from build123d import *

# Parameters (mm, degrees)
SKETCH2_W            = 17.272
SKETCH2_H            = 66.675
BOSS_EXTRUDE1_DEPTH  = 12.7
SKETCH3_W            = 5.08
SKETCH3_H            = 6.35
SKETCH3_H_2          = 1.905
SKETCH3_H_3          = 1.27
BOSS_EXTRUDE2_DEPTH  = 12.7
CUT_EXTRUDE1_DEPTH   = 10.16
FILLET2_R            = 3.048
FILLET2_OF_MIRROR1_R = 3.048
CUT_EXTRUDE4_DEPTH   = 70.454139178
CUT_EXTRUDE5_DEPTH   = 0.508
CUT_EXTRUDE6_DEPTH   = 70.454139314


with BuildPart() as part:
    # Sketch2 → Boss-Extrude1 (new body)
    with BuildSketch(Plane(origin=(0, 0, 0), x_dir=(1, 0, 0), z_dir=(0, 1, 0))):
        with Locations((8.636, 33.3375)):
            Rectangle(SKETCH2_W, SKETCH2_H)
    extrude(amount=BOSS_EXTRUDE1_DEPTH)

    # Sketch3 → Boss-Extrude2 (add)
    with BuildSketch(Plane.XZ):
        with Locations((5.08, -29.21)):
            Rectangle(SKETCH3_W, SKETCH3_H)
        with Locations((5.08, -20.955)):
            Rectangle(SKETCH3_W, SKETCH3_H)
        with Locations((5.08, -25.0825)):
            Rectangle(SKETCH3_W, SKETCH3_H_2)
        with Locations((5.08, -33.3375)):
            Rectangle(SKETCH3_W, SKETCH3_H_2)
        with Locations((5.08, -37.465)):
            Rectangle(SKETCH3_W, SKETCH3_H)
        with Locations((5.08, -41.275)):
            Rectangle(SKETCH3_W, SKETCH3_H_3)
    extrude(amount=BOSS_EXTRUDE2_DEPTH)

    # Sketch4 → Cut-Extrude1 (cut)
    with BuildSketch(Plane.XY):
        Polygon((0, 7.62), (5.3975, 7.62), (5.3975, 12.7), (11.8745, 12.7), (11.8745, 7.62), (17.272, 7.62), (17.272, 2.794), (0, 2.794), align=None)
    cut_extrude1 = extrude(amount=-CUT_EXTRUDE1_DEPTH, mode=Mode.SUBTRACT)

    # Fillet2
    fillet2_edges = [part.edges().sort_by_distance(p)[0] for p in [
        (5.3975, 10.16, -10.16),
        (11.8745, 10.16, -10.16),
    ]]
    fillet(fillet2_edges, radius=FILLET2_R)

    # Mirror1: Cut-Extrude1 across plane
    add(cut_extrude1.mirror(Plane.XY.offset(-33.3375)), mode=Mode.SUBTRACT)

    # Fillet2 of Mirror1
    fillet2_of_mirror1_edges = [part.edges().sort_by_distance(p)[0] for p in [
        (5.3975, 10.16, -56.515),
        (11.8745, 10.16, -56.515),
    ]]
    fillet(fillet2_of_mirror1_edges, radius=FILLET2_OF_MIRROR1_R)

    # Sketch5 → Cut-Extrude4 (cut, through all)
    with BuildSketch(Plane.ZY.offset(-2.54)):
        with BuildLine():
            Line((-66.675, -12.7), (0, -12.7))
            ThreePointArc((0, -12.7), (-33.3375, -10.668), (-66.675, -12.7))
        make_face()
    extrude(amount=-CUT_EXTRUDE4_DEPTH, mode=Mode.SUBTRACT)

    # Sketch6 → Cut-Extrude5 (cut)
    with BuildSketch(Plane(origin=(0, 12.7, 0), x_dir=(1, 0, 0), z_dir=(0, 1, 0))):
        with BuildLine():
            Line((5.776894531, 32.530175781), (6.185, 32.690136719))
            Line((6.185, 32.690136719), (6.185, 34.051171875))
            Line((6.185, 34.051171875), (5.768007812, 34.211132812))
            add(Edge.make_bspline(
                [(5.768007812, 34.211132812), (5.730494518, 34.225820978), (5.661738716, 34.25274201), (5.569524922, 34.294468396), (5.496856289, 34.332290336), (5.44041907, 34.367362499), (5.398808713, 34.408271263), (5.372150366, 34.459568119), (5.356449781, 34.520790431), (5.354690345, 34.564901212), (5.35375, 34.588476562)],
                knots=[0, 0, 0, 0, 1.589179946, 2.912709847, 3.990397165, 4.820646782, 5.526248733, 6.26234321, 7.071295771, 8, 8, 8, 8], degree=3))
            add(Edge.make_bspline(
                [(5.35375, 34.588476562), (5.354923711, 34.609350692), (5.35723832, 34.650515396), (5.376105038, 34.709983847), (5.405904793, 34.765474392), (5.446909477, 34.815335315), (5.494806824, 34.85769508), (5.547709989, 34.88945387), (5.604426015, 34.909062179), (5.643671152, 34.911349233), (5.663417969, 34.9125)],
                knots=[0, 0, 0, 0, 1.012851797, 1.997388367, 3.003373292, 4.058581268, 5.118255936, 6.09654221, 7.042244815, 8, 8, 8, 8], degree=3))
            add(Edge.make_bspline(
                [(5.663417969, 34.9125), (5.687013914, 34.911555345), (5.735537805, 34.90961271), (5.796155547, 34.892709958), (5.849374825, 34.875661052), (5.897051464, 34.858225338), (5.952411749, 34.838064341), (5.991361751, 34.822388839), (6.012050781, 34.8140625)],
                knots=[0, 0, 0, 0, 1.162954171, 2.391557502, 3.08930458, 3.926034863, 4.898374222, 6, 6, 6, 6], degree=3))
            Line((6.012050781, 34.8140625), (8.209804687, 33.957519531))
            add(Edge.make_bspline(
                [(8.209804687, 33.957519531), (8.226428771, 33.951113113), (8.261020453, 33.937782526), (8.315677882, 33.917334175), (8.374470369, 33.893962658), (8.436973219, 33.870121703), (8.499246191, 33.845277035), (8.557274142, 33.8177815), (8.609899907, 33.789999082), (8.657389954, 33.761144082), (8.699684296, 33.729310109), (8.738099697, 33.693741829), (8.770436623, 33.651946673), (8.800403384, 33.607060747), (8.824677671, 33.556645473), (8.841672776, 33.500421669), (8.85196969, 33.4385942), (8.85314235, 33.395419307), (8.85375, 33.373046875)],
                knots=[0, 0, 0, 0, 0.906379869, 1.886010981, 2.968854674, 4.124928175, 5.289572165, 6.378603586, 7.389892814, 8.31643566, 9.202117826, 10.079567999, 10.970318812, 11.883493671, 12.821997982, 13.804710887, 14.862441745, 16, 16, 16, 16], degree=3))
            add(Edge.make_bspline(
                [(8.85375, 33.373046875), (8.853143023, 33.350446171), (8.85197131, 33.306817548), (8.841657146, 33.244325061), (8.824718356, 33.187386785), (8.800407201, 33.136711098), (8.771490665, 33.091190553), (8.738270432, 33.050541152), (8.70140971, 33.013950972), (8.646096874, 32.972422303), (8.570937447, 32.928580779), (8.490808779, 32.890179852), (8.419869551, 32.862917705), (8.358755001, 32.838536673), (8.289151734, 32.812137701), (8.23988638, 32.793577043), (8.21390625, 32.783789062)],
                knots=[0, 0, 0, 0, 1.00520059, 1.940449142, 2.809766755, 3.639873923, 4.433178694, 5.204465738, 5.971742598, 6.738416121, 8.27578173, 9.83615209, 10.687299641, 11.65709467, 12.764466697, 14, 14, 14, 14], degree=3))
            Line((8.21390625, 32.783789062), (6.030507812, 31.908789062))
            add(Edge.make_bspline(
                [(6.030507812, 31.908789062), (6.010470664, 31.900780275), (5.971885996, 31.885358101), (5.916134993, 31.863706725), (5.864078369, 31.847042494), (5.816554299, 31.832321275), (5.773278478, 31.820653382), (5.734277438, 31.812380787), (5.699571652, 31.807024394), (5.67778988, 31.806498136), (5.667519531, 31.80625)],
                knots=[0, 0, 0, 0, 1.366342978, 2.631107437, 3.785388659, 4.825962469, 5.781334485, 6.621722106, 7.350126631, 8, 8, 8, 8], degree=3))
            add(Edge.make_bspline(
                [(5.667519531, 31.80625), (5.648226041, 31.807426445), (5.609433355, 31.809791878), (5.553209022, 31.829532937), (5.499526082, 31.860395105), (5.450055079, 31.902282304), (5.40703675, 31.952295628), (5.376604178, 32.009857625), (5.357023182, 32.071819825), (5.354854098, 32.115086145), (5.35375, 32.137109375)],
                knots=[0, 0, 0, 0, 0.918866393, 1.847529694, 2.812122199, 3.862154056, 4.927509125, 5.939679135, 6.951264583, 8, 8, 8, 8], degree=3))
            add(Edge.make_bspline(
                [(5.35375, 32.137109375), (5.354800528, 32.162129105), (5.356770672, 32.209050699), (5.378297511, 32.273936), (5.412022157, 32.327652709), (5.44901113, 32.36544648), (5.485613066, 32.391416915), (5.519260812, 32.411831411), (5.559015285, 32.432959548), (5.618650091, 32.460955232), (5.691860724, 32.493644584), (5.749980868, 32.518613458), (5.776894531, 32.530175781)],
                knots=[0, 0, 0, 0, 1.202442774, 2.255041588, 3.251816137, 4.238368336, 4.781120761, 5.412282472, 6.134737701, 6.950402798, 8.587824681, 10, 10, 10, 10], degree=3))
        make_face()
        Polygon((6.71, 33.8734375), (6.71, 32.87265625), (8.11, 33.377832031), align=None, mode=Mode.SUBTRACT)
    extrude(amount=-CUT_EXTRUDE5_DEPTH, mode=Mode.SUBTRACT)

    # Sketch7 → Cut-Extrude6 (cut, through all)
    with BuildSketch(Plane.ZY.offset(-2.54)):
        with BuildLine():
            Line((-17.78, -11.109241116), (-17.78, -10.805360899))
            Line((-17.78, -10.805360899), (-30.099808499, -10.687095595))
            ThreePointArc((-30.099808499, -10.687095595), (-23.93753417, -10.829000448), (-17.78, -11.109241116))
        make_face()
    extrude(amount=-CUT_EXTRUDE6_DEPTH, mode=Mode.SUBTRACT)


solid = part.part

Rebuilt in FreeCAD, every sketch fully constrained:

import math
import FreeCAD as App
import Part
import Sketcher

V = App.Vector
Q = App.Units.Quantity


def edges_at(feature, points):
    """Names of the edges that pass closest to the given points."""
    edges = feature.Shape.Edges
    near = lambda p: min(range(len(edges)), key=lambda i: edges[i].distToShape(Part.Vertex(*p))[0])
    return sorted({f"Edge{near(p) + 1}" for p in points})


def add_polygon(sketch, points):
    """Adds a closed chain of lines whose ends are joined by coincident constraints."""
    first, n = sketch.GeometryCount, len(points)
    for a, b in zip(points, points[1:] + points[:1]):
        sketch.addGeometry(Part.LineSegment(App.Vector(*a, 0), App.Vector(*b, 0)), False)
    for i in range(n):
        sketch.addConstraint(Sketcher.Constraint("Coincident", first + i, 2, first + (i + 1) % n, 1))

doc = App.newDocument("Part")
params = doc.addObject("Spreadsheet::Sheet", "Params")
for row, (alias, value) in enumerate([
    ("sketch1_width", "0.68 in"),
    ("sketch1_height", "2.625 in"),
    ("pad1_length", "0.5 in"),
    ("sketch2_width", "0.2 in"),
    ("sketch2_height", "0.95 in"),
    ("pad2_length", "0.5 in"),
    ("sketch3_height", "0.2 in"),
    ("sketch3_width", "0.68 in"),
    ("sketch3_height2", "0.19 in"),
    ("sketch3_width2", "0.255 in"),
    ("pocket1_length", "0.4 in"),
    ("fillet_radius", "0.12 in"),
    ("fillet2_radius", "0.12 in"),
    ("sketch4_height", "2.625 in"),
    ("pocket3_length", "0.02 in"),
], start=1):
    params.set(f"A{row}", alias)
    params.set(f"B{row}", "=" + value)
    params.setAlias(f"B{row}", alias)

body = doc.addObject("PartDesign::Body", "Body")

# Sketch on XZ plane
sketch1 = body.newObject("Sketcher::SketchObject", "Sketch")
sketch1.AttachmentSupport = (doc.getObject("XZ_Plane"), [""])
sketch1.MapMode = "FlatFace"
add_polygon(sketch1, [(0, -67), (0, 0), (17, 0), (17, -67)])  # lines 0-3
sketch1.addConstraint(Sketcher.Constraint("Vertical", 0))
sketch1.addConstraint(Sketcher.Constraint("Horizontal", 1))
sketch1.addConstraint(Sketcher.Constraint("Vertical", 2))
sketch1.addConstraint(Sketcher.Constraint("Horizontal", 3))
sketch1.addConstraint(Sketcher.Constraint("Coincident", 0, 2, -1, 1))
sketch1.addConstraint(Sketcher.Constraint("DistanceX", 1, 1, 1, 2, Q("0.68 in")))
sketch1.addConstraint(Sketcher.Constraint("DistanceY", 0, 1, 0, 2, Q("2.625 in")))
sketch1.setExpression("Constraints[9]", "Params.sketch1_width")
sketch1.setExpression("Constraints[10]", "Params.sketch1_height")
pad1 = body.newObject("PartDesign::Pad", "Pad")
pad1.Profile = sketch1
pad1.setExpression("Length", "Params.pad1_length")
pad1.Reversed = True

# Sketch on XZ plane
sketch2 = body.newObject("Sketcher::SketchObject", "Sketch001")
sketch2.AttachmentSupport = (doc.getObject("XZ_Plane"), [""])
sketch2.MapMode = "FlatFace"
add_polygon(sketch2, [(8, -18), (3, -18), (3, -42), (8, -42)])  # lines 0-3
sketch2.addConstraint(Sketcher.Constraint("Horizontal", 0))
sketch2.addConstraint(Sketcher.Constraint("Vertical", 1))
sketch2.addConstraint(Sketcher.Constraint("Horizontal", 2))
sketch2.addConstraint(Sketcher.Constraint("Vertical", 3))
sketch2.addConstraint(Sketcher.Constraint("DistanceX", 0, 2, 0, 1, Q("0.2 in")))
sketch2.addConstraint(Sketcher.Constraint("DistanceY", 1, 2, 1, 1, Q("0.95 in")))
sketch2.addConstraint(Sketcher.Constraint("DistanceX", -1, 1, 0, 2, Q("0.1 in")))
sketch2.addConstraint(Sketcher.Constraint("DistanceY", 0, 2, -1, 1, Q("0.7 in")))
sketch2.setExpression("Constraints[8]", "Params.sketch2_width")
sketch2.setExpression("Constraints[9]", "Params.sketch2_height")
pad2 = body.newObject("PartDesign::Pad", "Pad001")
pad2.Profile = sketch2
pad2.setExpression("Length", "Params.pad2_length")

# Sketch on XY plane
sketch3 = body.newObject("Sketcher::SketchObject", "Sketch002")
sketch3.AttachmentSupport = (doc.getObject("XY_Plane"), [""])
sketch3.MapMode = "FlatFace"
add_polygon(sketch3, [(5.4, 7.6), (0, 7.6), (0, 2.8), (17.3, 2.8), (17.3, 7.6), (11.9, 7.6), (11.9, 12.7), (5.4, 12.7)])  # lines 0-7
sketch3.addConstraint(Sketcher.Constraint("Horizontal", 0))
sketch3.addConstraint(Sketcher.Constraint("Vertical", 1))
sketch3.addConstraint(Sketcher.Constraint("Horizontal", 2))
sketch3.addConstraint(Sketcher.Constraint("Vertical", 3))
sketch3.addConstraint(Sketcher.Constraint("Horizontal", 4))
sketch3.addConstraint(Sketcher.Constraint("Vertical", 5))
sketch3.addConstraint(Sketcher.Constraint("Horizontal", 6))
sketch3.addConstraint(Sketcher.Constraint("Vertical", 7))
sketch3.addConstraint(Sketcher.Constraint("PointOnObject", 0, 2, -2))
sketch3.addConstraint(Sketcher.Constraint("Horizontal", 0, 2, 3, 2))
sketch3.addConstraint(Sketcher.Constraint("Equal", 0, 4))
sketch3.addConstraint(Sketcher.Constraint("DistanceY", 5, 1, 5, 2, Q("0.2 in")))
sketch3.addConstraint(Sketcher.Constraint("DistanceX", 2, 1, 2, 2, Q("0.68 in")))
sketch3.addConstraint(Sketcher.Constraint("DistanceY", 1, 2, 1, 1, Q("0.19 in")))
sketch3.addConstraint(Sketcher.Constraint("DistanceY", -1, 1, 0, 2, Q("0.3 in")))
sketch3.addConstraint(Sketcher.Constraint("DistanceX", 6, 2, 6, 1, Q("0.255 in")))
sketch3.setExpression("Constraints[19]", "Params.sketch3_height")
sketch3.setExpression("Constraints[20]", "Params.sketch3_width")
sketch3.setExpression("Constraints[21]", "Params.sketch3_height2")
sketch3.setExpression("Constraints[23]", "Params.sketch3_width2")
pocket1 = body.newObject("PartDesign::Pocket", "Pocket")
pocket1.Profile = sketch3
pocket1.setExpression("Length", "Params.pocket1_length")
doc.recompute()

fillet = body.newObject("PartDesign::Fillet", "Fillet")
fillet.Base = (pocket1, edges_at(pocket1, [(5.397, 10.16, -10.16), (11.874, 10.16, -10.16)]))
fillet.setExpression("Radius", "Params.fillet_radius")
doc.recompute()

datumplane = body.newObject("PartDesign::Plane", "DatumPlane")
datumplane.AttachmentSupport = (doc.getObject("XY_Plane"), [""])
datumplane.MapMode = "FlatFace"
datumplane.AttachmentOffset = App.Placement(V(0, 0, -1.3125 * 25.4), App.Rotation())
mirrored = body.newObject("PartDesign::Mirrored", "Mirrored")
mirrored.Originals = [pocket1]
mirrored.MirrorPlane = (datumplane, [""])
body.Tip = mirrored
doc.recompute()

fillet2 = body.newObject("PartDesign::Fillet", "Fillet001")
fillet2.Base = (mirrored, edges_at(mirrored, [(5.397, 10.16, -56.515), (11.874, 10.16, -56.515)]))
fillet2.setExpression("Radius", "Params.fillet2_radius")

# Sketch on YZ plane
sketch4 = body.newObject("Sketcher::SketchObject", "Sketch003")
sketch4.AttachmentSupport = (doc.getObject("YZ_Plane"), [""])
sketch4.MapMode = "FlatFace"
sketch4.AttachmentOffset = App.Placement(V(0, 0, 0.1 * 25.4), App.Rotation())
sketch4.addGeometry(Part.LineSegment(V(-13, -67, 0), V(-13, 0, 0)), False)
sketch4.addGeometry(Part.ArcOfCircle(Part.Circle(V(-285, -33, 0), V(0, 0, 1), 274), math.radians(-6.98), math.radians(6.98)), False)
sketch4.addConstraint(Sketcher.Constraint("Coincident", 0, 1, 1, 1))
sketch4.addConstraint(Sketcher.Constraint("Coincident", 1, 2, 0, 2))
sketch4.addConstraint(Sketcher.Constraint("Vertical", 0))
sketch4.addConstraint(Sketcher.Constraint("PointOnObject", 1, 2, -1))
sketch4.addConstraint(Sketcher.Constraint("DistanceX", 0, 1, -1, 1, Q("0.5 in")))
sketch4.addConstraint(Sketcher.Constraint("DistanceY", 0, 1, 0, 2, Q("2.625 in")))
sketch4.addConstraint(Sketcher.Constraint("Radius", 1, Q("274.48768 mm")))
sketch4.setExpression("Constraints[5]", "Params.sketch4_height")
pocket2 = body.newObject("PartDesign::Pocket", "Pocket001")
pocket2.Profile = sketch4
pocket2.Type = "ThroughAll"
pocket2.Reversed = True

# Sketch on XZ plane
sketch5 = body.newObject("Sketcher::SketchObject", "Sketch004")
sketch5.AttachmentSupport = (doc.getObject("XZ_Plane"), [""])
sketch5.MapMode = "FlatFace"
sketch5.AttachmentOffset = App.Placement(V(0, 0, -0.5 * 25.4), App.Rotation())
sketch5.addGeometry(Part.LineSegment(V(6.185, -32.690137, 0), V(5.776895, -32.530176, 0)), False)  # 0
sketch5.addGeometry(Part.BSplineCurve([V(5.35375, -32.137109, 0), V(5.354801, -32.162129, 0), V(5.356771, -32.209051, 0), V(5.378298, -32.273936, 0), V(5.412022, -32.327653, 0), V(5.449011, -32.365446, 0), V(5.485613, -32.391417, 0), V(5.519261, -32.411831, 0), V(5.559015, -32.43296, 0), V(5.61865, -32.460955, 0), V(5.691861, -32.493645, 0), V(5.749981, -32.518613, 0), V(5.776895, -32.530176, 0)], [4, 1, 1, 1, 1, 1, 1, 1, 1, 1, 4], [0, 1.202442774, 2.255041588, 3.251816137, 4.238368336, 4.781120761, 5.412282472, 6.134737701, 6.950402798, 8.587824681, 10], False, 3, [1, 1, 1, 1, 1, 1, 1, 1, 1, 1, 1, 1, 1], False), False)  # 1
sketch5.addGeometry(Part.BSplineCurve([V(5.66752, -31.80625, 0), V(5.648226, -31.807426, 0), V(5.609433, -31.809792, 0), V(5.553209, -31.829533, 0), V(5.499526, -31.860395, 0), V(5.450055, -31.902282, 0), V(5.407037, -31.952296, 0), V(5.376604, -32.009858, 0), V(5.357023, -32.07182, 0), V(5.354854, -32.115086, 0), V(5.35375, -32.137109, 0)], [4, 1, 1, 1, 1, 1, 1, 1, 4], [0, 0.918866393, 1.847529694, 2.812122199, 3.862154056, 4.927509125, 5.939679135, 6.951264583, 8], False, 3, [1, 1, 1, 1, 1, 1, 1, 1, 1, 1, 1], False), False)  # 2
sketch5.addGeometry(Part.BSplineCurve([V(6.030508, -31.908789, 0), V(6.010471, -31.90078, 0), V(5.971886, -31.885358, 0), V(5.916135, -31.863707, 0), V(5.864078, -31.847042, 0), V(5.816554, -31.832321, 0), V(5.773278, -31.820653, 0), V(5.734277, -31.812381, 0), V(5.699572, -31.807024, 0), V(5.67779, -31.806498, 0), V(5.66752, -31.80625, 0)], [4, 1, 1, 1, 1, 1, 1, 1, 4], [0, 1.366342978, 2.631107437, 3.785388659, 4.825962469, 5.781334485, 6.621722106, 7.350126631, 8], False, 3, [1, 1, 1, 1, 1, 1, 1, 1, 1, 1, 1], False), False)  # 3
sketch5.addGeometry(Part.LineSegment(V(6.030508, -31.908789, 0), V(8.213906, -32.783789, 0)), False)  # 4
sketch5.addGeometry(Part.BSplineCurve([V(8.85375, -33.373047, 0), V(8.853143, -33.350446, 0), V(8.851971, -33.306818, 0), V(8.841657, -33.244325, 0), V(8.824718, -33.187387, 0), V(8.800407, -33.136711, 0), V(8.771491, -33.091191, 0), V(8.73827, -33.050541, 0), V(8.70141, -33.013951, 0), V(8.646097, -32.972422, 0), V(8.570937, -32.928581, 0), V(8.490809, -32.89018, 0), V(8.41987, -32.862918, 0), V(8.358755, -32.838537, 0), V(8.289152, -32.812138, 0), V(8.239886, -32.793577, 0), V(8.213906, -32.783789, 0)], [4, 1, 1, 1, 1, 1, 1, 1, 1, 1, 1, 1, 1, 1, 4], [0, 1.00520059, 1.940449142, 2.809766755, 3.639873923, 4.433178694, 5.204465738, 5.971742598, 6.738416121, 8.27578173, 9.83615209, 10.687299641, 11.65709467, 12.764466697, 14], False, 3, [1, 1, 1, 1, 1, 1, 1, 1, 1, 1, 1, 1, 1, 1, 1, 1, 1], False), False)  # 5
sketch5.addGeometry(Part.BSplineCurve([V(8.209805, -33.95752, 0), V(8.226429, -33.951113, 0), V(8.26102, -33.937783, 0), V(8.315678, -33.917334, 0), V(8.37447, -33.893963, 0), V(8.436973, -33.870122, 0), V(8.499246, -33.845277, 0), V(8.557274, -33.817782, 0), V(8.6099, -33.789999, 0), V(8.65739, -33.761144, 0), V(8.699684, -33.72931, 0), V(8.7381, -33.693742, 0), V(8.770437, -33.651947, 0), V(8.800403, -33.607061, 0), V(8.824678, -33.556645, 0), V(8.841673, -33.500422, 0), V(8.85197, -33.438594, 0), V(8.853142, -33.395419, 0), V(8.85375, -33.373047, 0)], [4, 1, 1, 1, 1, 1, 1, 1, 1, 1, 1, 1, 1, 1, 1, 1, 4], [0, 0.906379869, 1.886010981, 2.968854674, 4.124928175, 5.289572165, 6.378603586, 7.389892814, 8.31643566, 9.202117826, 10.079567999, 10.970318812, 11.883493671, 12.821997982, 13.804710887, 14.862441745, 16], False, 3, [1, 1, 1, 1, 1, 1, 1, 1, 1, 1, 1, 1, 1, 1, 1, 1, 1, 1, 1], False), False)  # 6
sketch5.addGeometry(Part.LineSegment(V(8.209805, -33.95752, 0), V(6.012051, -34.814062, 0)), False)  # 7
sketch5.addGeometry(Part.BSplineCurve([V(5.663418, -34.9125, 0), V(5.687014, -34.911555, 0), V(5.735538, -34.909613, 0), V(5.796156, -34.89271, 0), V(5.849375, -34.875661, 0), V(5.897051, -34.858225, 0), V(5.952412, -34.838064, 0), V(5.991362, -34.822389, 0), V(6.012051, -34.814062, 0)], [4, 1, 1, 1, 1, 1, 4], [0, 1.162954171, 2.391557502, 3.08930458, 3.926034863, 4.898374222, 6], False, 3, [1, 1, 1, 1, 1, 1, 1, 1, 1], False), False)  # 8
sketch5.addGeometry(Part.BSplineCurve([V(5.35375, -34.588477, 0), V(5.354924, -34.609351, 0), V(5.357238, -34.650515, 0), V(5.376105, -34.709984, 0), V(5.405905, -34.765474, 0), V(5.446909, -34.815335, 0), V(5.494807, -34.857695, 0), V(5.54771, -34.889454, 0), V(5.604426, -34.909062, 0), V(5.643671, -34.911349, 0), V(5.663418, -34.9125, 0)], [4, 1, 1, 1, 1, 1, 1, 1, 4], [0, 1.012851797, 1.997388367, 3.003373292, 4.058581268, 5.118255936, 6.09654221, 7.042244815, 8], False, 3, [1, 1, 1, 1, 1, 1, 1, 1, 1, 1, 1], False), False)  # 9
sketch5.addGeometry(Part.BSplineCurve([V(5.768008, -34.211133, 0), V(5.730495, -34.225821, 0), V(5.661739, -34.252742, 0), V(5.569525, -34.294468, 0), V(5.496856, -34.33229, 0), V(5.440419, -34.367362, 0), V(5.398809, -34.408271, 0), V(5.37215, -34.459568, 0), V(5.35645, -34.52079, 0), V(5.35469, -34.564901, 0), V(5.35375, -34.588477, 0)], [4, 1, 1, 1, 1, 1, 1, 1, 4], [0, 1.589179946, 2.912709847, 3.990397165, 4.820646782, 5.526248733, 6.26234321, 7.071295771, 8], False, 3, [1, 1, 1, 1, 1, 1, 1, 1, 1, 1, 1], False), False)  # 10
sketch5.addGeometry(Part.LineSegment(V(5.768008, -34.211133, 0), V(6.185, -34.051172, 0)), False)  # 11
sketch5.addGeometry(Part.LineSegment(V(6.185, -34.051172, 0), V(6.185, -32.690137, 0)), False)  # 12
add_polygon(sketch5, [(6.71, -33.873438), (8.11, -33.377832), (6.71, -32.872656)])  # lines 13-15
sketch5.addConstraint(Sketcher.Constraint("Block", 1))
sketch5.addConstraint(Sketcher.Constraint("Block", 2))
sketch5.addConstraint(Sketcher.Constraint("Block", 3))
sketch5.addConstraint(Sketcher.Constraint("Block", 5))
sketch5.addConstraint(Sketcher.Constraint("Block", 6))
sketch5.addConstraint(Sketcher.Constraint("Block", 8))
sketch5.addConstraint(Sketcher.Constraint("Block", 9))
sketch5.addConstraint(Sketcher.Constraint("Block", 10))
sketch5.addConstraint(Sketcher.Constraint("Coincident", 0, 2, 1, 2))
sketch5.addConstraint(Sketcher.Constraint("Coincident", 3, 1, 4, 1))
sketch5.addConstraint(Sketcher.Constraint("Coincident", 4, 2, 5, 2))
sketch5.addConstraint(Sketcher.Constraint("Coincident", 6, 1, 7, 1))
sketch5.addConstraint(Sketcher.Constraint("Coincident", 7, 2, 8, 2))
sketch5.addConstraint(Sketcher.Constraint("Coincident", 10, 1, 11, 1))
sketch5.addConstraint(Sketcher.Constraint("Coincident", 11, 2, 12, 1))
sketch5.addConstraint(Sketcher.Constraint("Coincident", 12, 2, 0, 1))
sketch5.addConstraint(Sketcher.Constraint("Vertical", 12))
sketch5.addConstraint(Sketcher.Constraint("Vertical", 15))
sketch5.addConstraint(Sketcher.Constraint("DistanceY", 15, 2, -1, 1, Q("1.3335999 in")))
sketch5.addConstraint(Sketcher.Constraint("DistanceY", 15, 2, 15, 1, Q("1.000781 mm")))
sketch5.addConstraint(Sketcher.Constraint("DistanceX", -1, 1, 11, 2, Q("6.185 mm")))
sketch5.addConstraint(Sketcher.Constraint("DistanceX", -1, 1, 13, 2, Q("8.11 mm")))
sketch5.addConstraint(Sketcher.Constraint("DistanceX", -1, 1, 14, 2, Q("6.71 mm")))
sketch5.addConstraint(Sketcher.Constraint("DistanceY", 15, 2, 12, 2, Q("1.183301 mm")))
sketch5.addConstraint(Sketcher.Constraint("Distance", 11, Q("0.446621 mm")))
sketch5.addConstraint(Sketcher.Constraint("DistanceY", 11, 2, 13, 2, Q("0.67334 mm")))
pocket3 = body.newObject("PartDesign::Pocket", "Pocket002")
pocket3.Profile = sketch5
pocket3.setExpression("Length", "Params.pocket3_length")
pocket3.Reversed = True

# Sketch on YZ plane
sketch6 = body.newObject("Sketcher::SketchObject", "Sketch005")
sketch6.AttachmentSupport = (doc.getObject("YZ_Plane"), [""])
sketch6.MapMode = "FlatFace"
sketch6.AttachmentOffset = App.Placement(V(0, 0, 0.1 * 25.4), App.Rotation())
sketch6.addGeometry(Part.LineSegment(V(-11.109241, -17.78, 0), V(-10.805361, -17.78, 0)), False)
sketch6.addGeometry(Part.LineSegment(V(-10.805361, -17.78, 0), V(-10.687096, -30.099808, 0)), False)
sketch6.addGeometry(Part.ArcOfCircle(Part.Circle(V(-285.155678, -33.3375, 0), V(0, 0, 1), 274.487678), math.radians(0.675842), math.radians(3.24917)), False)
sketch6.addConstraint(Sketcher.Constraint("Coincident", 0, 2, 1, 1))
sketch6.addConstraint(Sketcher.Constraint("Coincident", 1, 2, 2, 1))
sketch6.addConstraint(Sketcher.Constraint("Coincident", 2, 2, 0, 1))
sketch6.addConstraint(Sketcher.Constraint("Horizontal", 0))
sketch6.addConstraint(Sketcher.Constraint("DistanceY", 0, 2, -1, 1, Q("0.7 in")))
sketch6.addConstraint(Sketcher.Constraint("DistanceY", 2, 3, -1, 1, Q("1.3125 in")))
sketch6.addConstraint(Sketcher.Constraint("Radius", 2, Q("274.487678 mm")))
sketch6.addConstraint(Sketcher.Constraint("DistanceX", 0, 1, 0, 2, Q("0.30388 mm")))
sketch6.addConstraint(Sketcher.Constraint("DistanceX", 2, 3, -1, 1, Q("285.155678 mm")))
sketch6.addConstraint(Sketcher.Constraint("DistanceY", 1, 2, -1, 1, Q("30.099808 mm")))
pocket4 = body.newObject("PartDesign::Pocket", "Pocket003")
pocket4.Profile = sketch6
pocket4.Type = "ThroughAll"
pocket4.Reversed = True

doc.recompute()
